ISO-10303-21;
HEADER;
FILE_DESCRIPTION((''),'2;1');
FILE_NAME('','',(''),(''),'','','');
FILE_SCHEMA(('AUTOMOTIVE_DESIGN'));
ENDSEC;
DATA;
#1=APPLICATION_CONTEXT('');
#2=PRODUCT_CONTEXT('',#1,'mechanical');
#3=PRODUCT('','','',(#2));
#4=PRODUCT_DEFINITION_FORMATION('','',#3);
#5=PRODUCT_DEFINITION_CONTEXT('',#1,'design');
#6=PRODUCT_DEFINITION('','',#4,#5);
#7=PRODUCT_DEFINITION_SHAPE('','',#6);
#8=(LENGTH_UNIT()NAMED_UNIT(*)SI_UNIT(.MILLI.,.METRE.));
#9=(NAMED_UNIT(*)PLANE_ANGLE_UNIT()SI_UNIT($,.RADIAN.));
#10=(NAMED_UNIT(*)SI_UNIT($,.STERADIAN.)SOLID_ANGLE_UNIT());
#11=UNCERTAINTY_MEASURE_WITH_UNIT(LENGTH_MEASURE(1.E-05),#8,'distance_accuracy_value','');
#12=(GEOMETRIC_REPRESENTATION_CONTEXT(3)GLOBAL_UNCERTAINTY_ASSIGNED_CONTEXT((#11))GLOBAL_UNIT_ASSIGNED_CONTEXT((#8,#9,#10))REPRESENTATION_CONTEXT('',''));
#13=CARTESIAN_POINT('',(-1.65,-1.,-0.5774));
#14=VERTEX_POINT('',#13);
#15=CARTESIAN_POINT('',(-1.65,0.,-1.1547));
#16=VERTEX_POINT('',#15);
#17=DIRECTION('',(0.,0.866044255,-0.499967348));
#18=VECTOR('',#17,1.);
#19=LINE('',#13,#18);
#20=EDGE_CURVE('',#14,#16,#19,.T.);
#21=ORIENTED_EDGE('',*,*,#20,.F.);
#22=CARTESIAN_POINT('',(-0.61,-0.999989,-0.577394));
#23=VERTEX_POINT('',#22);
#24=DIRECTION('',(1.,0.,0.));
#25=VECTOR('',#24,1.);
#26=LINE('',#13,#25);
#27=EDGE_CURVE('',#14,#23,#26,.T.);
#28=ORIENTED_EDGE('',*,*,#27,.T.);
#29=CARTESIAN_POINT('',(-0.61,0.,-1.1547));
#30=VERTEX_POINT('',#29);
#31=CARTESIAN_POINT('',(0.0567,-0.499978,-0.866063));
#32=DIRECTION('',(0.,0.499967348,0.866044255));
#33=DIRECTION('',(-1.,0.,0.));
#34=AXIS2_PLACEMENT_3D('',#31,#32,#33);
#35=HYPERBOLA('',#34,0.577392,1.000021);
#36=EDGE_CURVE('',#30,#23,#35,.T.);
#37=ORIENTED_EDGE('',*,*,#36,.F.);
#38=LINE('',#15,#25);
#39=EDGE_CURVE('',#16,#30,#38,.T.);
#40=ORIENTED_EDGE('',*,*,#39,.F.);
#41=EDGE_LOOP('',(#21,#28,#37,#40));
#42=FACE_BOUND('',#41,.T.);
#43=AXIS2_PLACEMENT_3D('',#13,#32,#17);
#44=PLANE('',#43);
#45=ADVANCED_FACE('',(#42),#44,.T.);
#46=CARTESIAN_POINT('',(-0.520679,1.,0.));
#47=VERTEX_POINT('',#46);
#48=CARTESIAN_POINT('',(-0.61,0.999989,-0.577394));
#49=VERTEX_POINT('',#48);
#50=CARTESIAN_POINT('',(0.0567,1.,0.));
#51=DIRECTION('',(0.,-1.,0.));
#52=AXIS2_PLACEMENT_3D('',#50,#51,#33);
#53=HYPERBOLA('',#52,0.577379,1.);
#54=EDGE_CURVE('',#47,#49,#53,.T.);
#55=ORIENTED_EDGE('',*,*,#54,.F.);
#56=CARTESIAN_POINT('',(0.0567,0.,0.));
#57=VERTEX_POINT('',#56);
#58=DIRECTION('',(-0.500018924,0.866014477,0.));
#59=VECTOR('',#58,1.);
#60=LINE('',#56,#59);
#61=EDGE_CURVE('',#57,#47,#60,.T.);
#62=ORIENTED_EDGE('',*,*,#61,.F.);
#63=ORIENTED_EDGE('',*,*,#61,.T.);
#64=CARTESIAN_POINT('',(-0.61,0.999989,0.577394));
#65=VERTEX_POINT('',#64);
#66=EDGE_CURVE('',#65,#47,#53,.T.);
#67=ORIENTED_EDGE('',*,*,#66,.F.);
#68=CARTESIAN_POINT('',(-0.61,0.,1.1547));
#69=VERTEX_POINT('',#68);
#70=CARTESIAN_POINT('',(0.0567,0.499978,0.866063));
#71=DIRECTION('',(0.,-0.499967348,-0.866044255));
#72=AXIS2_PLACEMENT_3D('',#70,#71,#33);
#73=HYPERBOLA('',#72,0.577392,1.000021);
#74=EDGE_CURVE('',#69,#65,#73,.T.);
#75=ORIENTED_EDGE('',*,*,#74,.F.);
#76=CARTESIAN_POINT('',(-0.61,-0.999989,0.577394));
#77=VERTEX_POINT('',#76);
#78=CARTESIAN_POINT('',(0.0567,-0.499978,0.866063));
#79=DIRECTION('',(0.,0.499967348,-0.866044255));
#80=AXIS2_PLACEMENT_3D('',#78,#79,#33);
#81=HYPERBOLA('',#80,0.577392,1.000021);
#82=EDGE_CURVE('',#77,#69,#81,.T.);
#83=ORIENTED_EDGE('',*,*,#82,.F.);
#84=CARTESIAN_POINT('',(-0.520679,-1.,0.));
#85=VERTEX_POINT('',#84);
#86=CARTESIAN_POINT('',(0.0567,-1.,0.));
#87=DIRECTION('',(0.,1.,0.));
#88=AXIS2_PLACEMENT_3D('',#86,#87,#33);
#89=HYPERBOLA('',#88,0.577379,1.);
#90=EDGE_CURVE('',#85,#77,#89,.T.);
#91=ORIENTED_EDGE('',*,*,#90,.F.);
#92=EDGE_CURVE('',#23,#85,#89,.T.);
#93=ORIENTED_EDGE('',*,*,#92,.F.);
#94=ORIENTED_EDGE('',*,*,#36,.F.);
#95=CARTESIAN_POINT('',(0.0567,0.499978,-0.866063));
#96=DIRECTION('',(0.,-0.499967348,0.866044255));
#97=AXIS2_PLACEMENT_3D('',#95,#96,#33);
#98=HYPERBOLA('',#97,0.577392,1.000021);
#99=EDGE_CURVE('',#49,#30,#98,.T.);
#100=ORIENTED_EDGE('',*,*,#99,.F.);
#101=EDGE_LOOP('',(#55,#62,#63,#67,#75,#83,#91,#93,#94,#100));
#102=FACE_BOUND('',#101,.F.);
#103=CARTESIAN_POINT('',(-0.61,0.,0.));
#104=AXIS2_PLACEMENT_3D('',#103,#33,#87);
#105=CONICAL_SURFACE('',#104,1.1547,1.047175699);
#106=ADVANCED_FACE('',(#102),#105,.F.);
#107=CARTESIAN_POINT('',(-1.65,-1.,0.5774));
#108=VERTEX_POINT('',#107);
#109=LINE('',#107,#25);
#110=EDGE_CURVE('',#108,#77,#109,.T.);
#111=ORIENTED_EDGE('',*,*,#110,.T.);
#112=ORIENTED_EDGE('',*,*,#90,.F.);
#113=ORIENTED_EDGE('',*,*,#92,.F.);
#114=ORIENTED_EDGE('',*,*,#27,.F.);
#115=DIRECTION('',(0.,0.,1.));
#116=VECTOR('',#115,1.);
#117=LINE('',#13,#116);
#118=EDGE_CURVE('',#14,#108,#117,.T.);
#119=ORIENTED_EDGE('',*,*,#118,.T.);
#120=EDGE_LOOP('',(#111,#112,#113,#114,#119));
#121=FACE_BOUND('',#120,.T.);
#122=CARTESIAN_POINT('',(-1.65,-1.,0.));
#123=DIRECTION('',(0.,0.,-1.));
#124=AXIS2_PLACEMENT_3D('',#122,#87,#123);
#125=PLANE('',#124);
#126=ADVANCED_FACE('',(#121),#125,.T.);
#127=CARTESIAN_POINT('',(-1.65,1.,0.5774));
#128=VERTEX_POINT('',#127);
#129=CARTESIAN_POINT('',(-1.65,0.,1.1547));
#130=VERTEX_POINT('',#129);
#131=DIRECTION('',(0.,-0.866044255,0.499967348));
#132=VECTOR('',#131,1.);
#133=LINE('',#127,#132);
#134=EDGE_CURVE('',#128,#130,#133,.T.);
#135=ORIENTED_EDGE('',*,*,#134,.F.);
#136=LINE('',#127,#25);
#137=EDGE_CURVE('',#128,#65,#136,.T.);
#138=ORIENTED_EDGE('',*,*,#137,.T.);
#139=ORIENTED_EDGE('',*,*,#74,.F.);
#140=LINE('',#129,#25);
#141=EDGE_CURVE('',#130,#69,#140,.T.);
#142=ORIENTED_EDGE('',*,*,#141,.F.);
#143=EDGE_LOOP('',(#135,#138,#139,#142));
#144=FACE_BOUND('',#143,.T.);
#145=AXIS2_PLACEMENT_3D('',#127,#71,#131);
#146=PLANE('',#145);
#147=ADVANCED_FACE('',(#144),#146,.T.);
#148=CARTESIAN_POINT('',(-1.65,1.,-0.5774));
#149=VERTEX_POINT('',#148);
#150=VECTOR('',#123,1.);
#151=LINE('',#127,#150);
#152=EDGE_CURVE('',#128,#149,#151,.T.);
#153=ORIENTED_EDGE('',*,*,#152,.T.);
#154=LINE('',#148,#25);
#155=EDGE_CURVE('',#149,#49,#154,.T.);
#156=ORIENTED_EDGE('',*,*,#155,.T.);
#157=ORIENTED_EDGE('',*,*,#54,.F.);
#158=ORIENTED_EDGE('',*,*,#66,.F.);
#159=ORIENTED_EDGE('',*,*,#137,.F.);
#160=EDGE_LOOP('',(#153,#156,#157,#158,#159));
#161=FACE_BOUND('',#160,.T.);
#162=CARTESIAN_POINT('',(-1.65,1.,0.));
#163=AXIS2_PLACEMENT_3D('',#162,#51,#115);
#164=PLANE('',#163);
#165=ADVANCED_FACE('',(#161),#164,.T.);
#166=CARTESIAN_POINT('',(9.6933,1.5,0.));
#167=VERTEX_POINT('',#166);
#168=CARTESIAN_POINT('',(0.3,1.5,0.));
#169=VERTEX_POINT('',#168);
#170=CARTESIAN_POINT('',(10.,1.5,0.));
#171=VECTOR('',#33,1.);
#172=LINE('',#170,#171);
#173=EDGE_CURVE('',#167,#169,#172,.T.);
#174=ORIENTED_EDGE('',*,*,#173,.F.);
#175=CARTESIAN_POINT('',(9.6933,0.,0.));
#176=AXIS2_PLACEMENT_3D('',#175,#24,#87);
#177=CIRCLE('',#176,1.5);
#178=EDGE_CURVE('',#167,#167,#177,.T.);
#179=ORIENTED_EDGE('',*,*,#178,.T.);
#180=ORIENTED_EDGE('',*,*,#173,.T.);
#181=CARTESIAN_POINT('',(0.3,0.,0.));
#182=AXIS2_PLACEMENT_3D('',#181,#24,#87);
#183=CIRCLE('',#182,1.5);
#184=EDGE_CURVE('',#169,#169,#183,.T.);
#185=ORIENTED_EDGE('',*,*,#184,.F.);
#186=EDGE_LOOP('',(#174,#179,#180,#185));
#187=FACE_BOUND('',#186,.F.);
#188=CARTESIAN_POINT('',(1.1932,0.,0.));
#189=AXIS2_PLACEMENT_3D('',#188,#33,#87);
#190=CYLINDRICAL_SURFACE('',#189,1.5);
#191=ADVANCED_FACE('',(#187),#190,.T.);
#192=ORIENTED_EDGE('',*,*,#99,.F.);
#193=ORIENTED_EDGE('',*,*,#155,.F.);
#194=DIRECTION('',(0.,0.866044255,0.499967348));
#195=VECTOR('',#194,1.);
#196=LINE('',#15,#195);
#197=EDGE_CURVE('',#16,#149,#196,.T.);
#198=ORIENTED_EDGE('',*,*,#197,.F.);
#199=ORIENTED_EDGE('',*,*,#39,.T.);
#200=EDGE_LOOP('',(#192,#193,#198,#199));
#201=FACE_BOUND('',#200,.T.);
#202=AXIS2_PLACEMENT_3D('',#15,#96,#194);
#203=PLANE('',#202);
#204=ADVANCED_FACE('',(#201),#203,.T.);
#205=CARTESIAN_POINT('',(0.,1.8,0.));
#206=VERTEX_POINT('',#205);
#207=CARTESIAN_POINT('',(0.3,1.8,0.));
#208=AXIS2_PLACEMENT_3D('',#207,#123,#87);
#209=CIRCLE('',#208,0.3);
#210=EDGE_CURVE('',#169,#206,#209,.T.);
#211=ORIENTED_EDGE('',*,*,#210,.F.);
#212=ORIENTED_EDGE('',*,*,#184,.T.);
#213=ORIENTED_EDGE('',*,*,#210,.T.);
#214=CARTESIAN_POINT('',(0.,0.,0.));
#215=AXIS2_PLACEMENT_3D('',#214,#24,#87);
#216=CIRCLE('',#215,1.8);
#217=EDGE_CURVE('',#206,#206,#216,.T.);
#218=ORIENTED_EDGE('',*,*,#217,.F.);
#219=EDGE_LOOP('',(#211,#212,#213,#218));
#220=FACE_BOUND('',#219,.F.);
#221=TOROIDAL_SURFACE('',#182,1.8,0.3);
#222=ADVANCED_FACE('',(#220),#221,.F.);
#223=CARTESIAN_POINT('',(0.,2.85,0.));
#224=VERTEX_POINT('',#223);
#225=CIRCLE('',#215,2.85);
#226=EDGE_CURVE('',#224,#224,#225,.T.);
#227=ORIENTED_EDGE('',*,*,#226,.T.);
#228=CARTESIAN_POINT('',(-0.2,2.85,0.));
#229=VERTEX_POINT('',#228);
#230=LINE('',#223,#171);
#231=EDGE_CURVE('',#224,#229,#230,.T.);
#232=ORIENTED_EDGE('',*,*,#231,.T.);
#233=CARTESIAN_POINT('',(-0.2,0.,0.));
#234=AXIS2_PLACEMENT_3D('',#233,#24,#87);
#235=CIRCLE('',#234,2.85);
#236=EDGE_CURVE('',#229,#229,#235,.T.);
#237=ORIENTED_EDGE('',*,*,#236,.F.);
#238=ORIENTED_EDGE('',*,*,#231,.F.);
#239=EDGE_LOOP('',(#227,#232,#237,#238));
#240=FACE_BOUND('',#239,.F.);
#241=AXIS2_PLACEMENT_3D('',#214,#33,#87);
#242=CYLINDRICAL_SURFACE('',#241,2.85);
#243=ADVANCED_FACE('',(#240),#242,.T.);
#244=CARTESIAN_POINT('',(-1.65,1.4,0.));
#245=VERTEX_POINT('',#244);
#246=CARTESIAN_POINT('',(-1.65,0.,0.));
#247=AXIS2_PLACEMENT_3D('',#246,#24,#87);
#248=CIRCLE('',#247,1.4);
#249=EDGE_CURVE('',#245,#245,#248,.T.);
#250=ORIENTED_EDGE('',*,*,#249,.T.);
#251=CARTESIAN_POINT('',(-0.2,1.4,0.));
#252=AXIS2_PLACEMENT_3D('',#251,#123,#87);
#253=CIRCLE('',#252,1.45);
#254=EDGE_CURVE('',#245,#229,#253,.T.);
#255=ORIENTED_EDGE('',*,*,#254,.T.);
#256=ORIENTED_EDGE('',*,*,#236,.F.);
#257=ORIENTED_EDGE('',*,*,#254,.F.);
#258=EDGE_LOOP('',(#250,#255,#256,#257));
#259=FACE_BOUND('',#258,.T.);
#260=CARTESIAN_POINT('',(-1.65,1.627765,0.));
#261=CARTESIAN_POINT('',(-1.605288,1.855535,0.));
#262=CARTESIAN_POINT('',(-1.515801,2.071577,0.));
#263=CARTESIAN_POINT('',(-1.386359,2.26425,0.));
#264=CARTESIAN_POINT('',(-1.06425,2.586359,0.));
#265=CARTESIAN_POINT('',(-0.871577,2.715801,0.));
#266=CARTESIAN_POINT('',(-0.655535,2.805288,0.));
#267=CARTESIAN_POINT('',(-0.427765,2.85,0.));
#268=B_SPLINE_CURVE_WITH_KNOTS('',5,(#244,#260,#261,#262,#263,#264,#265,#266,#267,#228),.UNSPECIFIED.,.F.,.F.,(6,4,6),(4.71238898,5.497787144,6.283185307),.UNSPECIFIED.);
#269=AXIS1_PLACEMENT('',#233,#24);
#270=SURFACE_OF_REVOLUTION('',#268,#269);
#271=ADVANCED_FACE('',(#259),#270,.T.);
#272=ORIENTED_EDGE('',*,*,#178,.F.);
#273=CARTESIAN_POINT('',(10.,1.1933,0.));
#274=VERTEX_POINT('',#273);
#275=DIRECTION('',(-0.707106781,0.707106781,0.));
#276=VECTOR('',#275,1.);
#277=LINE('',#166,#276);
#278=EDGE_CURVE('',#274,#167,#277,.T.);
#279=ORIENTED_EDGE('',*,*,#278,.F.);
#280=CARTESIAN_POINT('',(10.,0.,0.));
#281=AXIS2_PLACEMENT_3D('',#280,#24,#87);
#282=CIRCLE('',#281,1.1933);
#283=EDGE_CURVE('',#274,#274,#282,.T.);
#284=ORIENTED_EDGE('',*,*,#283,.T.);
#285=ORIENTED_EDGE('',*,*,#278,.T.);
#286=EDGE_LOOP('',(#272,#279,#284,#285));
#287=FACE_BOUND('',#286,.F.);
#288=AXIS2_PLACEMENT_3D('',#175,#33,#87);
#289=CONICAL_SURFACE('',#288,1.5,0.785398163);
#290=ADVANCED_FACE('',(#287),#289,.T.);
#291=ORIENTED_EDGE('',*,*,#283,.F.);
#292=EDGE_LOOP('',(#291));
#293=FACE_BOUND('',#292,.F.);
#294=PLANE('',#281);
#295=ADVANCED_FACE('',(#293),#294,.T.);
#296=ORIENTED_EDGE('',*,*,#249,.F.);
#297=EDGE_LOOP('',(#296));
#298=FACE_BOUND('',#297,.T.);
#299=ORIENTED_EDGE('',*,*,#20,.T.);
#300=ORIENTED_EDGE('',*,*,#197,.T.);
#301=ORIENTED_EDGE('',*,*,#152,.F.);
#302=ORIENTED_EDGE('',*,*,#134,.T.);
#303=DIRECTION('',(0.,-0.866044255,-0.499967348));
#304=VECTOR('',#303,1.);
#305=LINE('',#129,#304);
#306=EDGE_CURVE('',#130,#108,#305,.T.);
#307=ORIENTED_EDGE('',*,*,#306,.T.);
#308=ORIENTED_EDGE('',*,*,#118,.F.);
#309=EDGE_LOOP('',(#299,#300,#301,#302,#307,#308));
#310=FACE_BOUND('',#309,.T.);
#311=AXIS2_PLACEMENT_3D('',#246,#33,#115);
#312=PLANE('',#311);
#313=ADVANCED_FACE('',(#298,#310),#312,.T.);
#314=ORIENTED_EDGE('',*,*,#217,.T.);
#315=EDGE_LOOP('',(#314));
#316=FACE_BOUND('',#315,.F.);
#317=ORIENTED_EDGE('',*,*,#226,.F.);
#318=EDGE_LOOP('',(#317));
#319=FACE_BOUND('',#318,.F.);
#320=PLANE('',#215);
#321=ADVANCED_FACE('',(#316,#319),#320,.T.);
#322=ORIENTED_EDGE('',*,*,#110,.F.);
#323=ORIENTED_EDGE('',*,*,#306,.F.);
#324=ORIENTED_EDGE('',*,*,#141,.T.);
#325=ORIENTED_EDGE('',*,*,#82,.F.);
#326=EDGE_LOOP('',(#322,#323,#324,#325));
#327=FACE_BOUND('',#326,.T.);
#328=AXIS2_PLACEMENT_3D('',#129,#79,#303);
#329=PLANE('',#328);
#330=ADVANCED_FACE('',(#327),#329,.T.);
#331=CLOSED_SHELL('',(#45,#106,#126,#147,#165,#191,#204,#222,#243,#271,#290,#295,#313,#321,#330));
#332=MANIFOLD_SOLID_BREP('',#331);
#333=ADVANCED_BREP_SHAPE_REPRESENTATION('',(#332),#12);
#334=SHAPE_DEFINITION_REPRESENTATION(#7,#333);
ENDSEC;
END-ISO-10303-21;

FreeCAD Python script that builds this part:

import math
import FreeCAD as App
import Part
import Sketcher

V = App.Vector
Q = App.Units.Quantity


def edges_at(feature, points):
    """Names of the edges that pass closest to the given points."""
    edges = feature.Shape.Edges
    near = lambda p: min(range(len(edges)), key=lambda i: edges[i].distToShape(Part.Vertex(*p))[0])
    return sorted({f"Edge{near(p) + 1}" for p in points})

doc = App.newDocument("Part")
body = doc.addObject("PartDesign::Body", "Body")

# Sketch on XY plane
sketch1 = doc.addObject("Sketcher::SketchObject", "Sketch")
body.addObject(sketch1)
sketch1.AttachmentSupport = (doc.XY_Plane, [""])
sketch1.MapMode = "FlatFace"
sketch1.addGeometry([
    Part.LineSegment(V(0.0567, 0, 0), V(10, 0, 0)),  # 0
    Part.LineSegment(V(10, 0, 0), V(10, 1.5, 0)),  # 1
    Part.LineSegment(V(10, 1.5, 0), V(0, 1.5, 0)),  # 2
    Part.LineSegment(V(0, 1.5, 0), V(0, 2.85, 0)),  # 3
    Part.LineSegment(V(0, 2.85, 0), V(-1.65, 2.85, 0)),  # 4
    Part.LineSegment(V(-1.65, 2.85, 0), V(-1.65, 1.1547, 0)),  # 5
    Part.LineSegment(V(-1.65, 1.1547, 0), V(-0.61, 1.1547, 0)),  # 6
    Part.LineSegment(V(-0.61, 1.1547, 0), V(0.0567, 0, 0)),  # 7
], False)
sketch1.addConstraint([
    Sketcher.Constraint("Coincident", 0, 2, 1, 1),
    Sketcher.Constraint("Coincident", 1, 2, 2, 1),
    Sketcher.Constraint("Coincident", 2, 2, 3, 1),
    Sketcher.Constraint("Coincident", 3, 2, 4, 1),
    Sketcher.Constraint("Coincident", 4, 2, 5, 1),
    Sketcher.Constraint("Coincident", 5, 2, 6, 1),
    Sketcher.Constraint("Coincident", 6, 2, 7, 1),
    Sketcher.Constraint("Coincident", 7, 2, 0, 1),
    Sketcher.Constraint("Horizontal", 0),
    Sketcher.Constraint("Vertical", 1),
    Sketcher.Constraint("Horizontal", 2),
    Sketcher.Constraint("Vertical", 3),
    Sketcher.Constraint("Horizontal", 4),
    Sketcher.Constraint("Vertical", 5),
    Sketcher.Constraint("Horizontal", 6),
    Sketcher.Constraint("PointOnObject", 0, 2, -1),
    Sketcher.Constraint("PointOnObject", 2, 2, -2),
    Sketcher.Constraint("DistanceX", 2, 2, 2, 1, Q("10 mm")),
    Sketcher.Constraint("DistanceX", 4, 2, 4, 1, Q("1.65 mm")),
    Sketcher.Constraint("DistanceX", 6, 1, 6, 2, Q("1.04 mm")),
    Sketcher.Constraint("DistanceY", 1, 1, 1, 2, Q("1.5 mm")),
    Sketcher.Constraint("DistanceY", 3, 1, 3, 2, Q("1.35 mm")),
    Sketcher.Constraint("DistanceX", 0, 1, 0, 2, Q("9.9433 mm")),
    Sketcher.Constraint("DistanceY", 5, 2, 5, 1, Q("1.6953 mm")),
])
revolution = doc.addObject("PartDesign::Revolution", "Revolution")
body.addObject(revolution)
revolution.Profile = sketch1
revolution.ReferenceAxis = (sketch1, ["H_Axis"])
revolution.Angle = 360

# Sketch on YZ plane
sketch2 = doc.addObject("Sketcher::SketchObject", "Sketch001")
body.addObject(sketch2)
sketch2.AttachmentSupport = (doc.YZ_Plane, [""])
sketch2.MapMode = "FlatFace"
sketch2.AttachmentOffset = App.Placement(V(0, 0, -1.65), App.Rotation())
sketch2.addGeometry([
    Part.LineSegment(V(1, 0.5774, 0), V(0, 1.1547, 0)),  # 0
    Part.ArcOfCircle(Part.Circle(V(0, 0, 0), V(0, 0, 1), 1.1547), math.radians(30.002137), math.radians(90)),  # 1
    Part.ArcOfCircle(Part.Circle(V(0, 0, 0), V(0, 0, 1), 1.1547), math.radians(90), math.radians(149.997863)),  # 2
    Part.LineSegment(V(0, 1.1547, 0), V(-1, 0.5774, 0)),  # 3
    Part.ArcOfCircle(Part.Circle(V(0, 0, 0), V(0, 0, 1), 1.1547), math.radians(-30.002137), math.radians(30.002137)),  # 4
    Part.LineSegment(V(1, 0.5774, 0), V(1, -0.5774, 0)),  # 5
    Part.LineSegment(V(-1, 0.5774, 0), V(-1, -0.5774, 0)),  # 6
    Part.ArcOfCircle(Part.Circle(V(0, 0, 0), V(0, 0, 1), 1.1547), math.radians(149.997863), math.radians(210.002137)),  # 7
    Part.LineSegment(V(-1, -0.5774, 0), V(0, -1.1547, 0)),  # 8
    Part.ArcOfCircle(Part.Circle(V(0, 0, 0), V(0, 0, 1), 1.1547), math.radians(-149.997863), math.radians(-90)),  # 9
    Part.ArcOfCircle(Part.Circle(V(0, 0, 0), V(0, 0, 1), 1.1547), math.radians(-90), math.radians(-30.002137)),  # 10
    Part.LineSegment(V(0, -1.1547, 0), V(1, -0.5774, 0)),  # 11
], False)
sketch2.addConstraint([
    Sketcher.Constraint("Coincident", 0, 1, 1, 1),
    Sketcher.Constraint("Coincident", 1, 2, 0, 2),
    Sketcher.Constraint("Coincident", 2, 1, 3, 1),
    Sketcher.Constraint("Coincident", 3, 2, 2, 2),
    Sketcher.Constraint("Coincident", 4, 1, 5, 2),
    Sketcher.Constraint("Coincident", 5, 1, 4, 2),
    Sketcher.Constraint("Coincident", 6, 1, 7, 1),
    Sketcher.Constraint("Coincident", 7, 2, 6, 2),
    Sketcher.Constraint("Coincident", 8, 1, 9, 1),
    Sketcher.Constraint("Coincident", 9, 2, 8, 2),
    Sketcher.Constraint("Coincident", 10, 1, 11, 1),
    Sketcher.Constraint("Coincident", 11, 2, 10, 2),
    Sketcher.Constraint("Vertical", 5),
    Sketcher.Constraint("Vertical", 6),
    Sketcher.Constraint("Coincident", 1, 3, -1, 1),
    Sketcher.Constraint("Coincident", 2, 3, -1, 1),
    Sketcher.Constraint("Coincident", 4, 3, -1, 1),
    Sketcher.Constraint("Coincident", 7, 3, -1, 1),
    Sketcher.Constraint("Coincident", 9, 3, -1, 1),
    Sketcher.Constraint("Coincident", 10, 3, -1, 1),
    Sketcher.Constraint("Coincident", 2, 1, 1, 2),
    Sketcher.Constraint("Coincident", 5, 1, 0, 1),
    Sketcher.Constraint("Coincident", 6, 1, 3, 2),
    Sketcher.Constraint("Coincident", 8, 1, 7, 2),
    Sketcher.Constraint("Coincident", 10, 1, 9, 2),
    Sketcher.Constraint("PointOnObject", 1, 2, -2),
    Sketcher.Constraint("PointOnObject", 9, 2, -2),
    Sketcher.Constraint("Parallel", 0, 8),
    Sketcher.Constraint("Parallel", 3, 11),
    Sketcher.Constraint("DistanceX", -1, 1, 0, 1, Q("1 mm")),
    Sketcher.Constraint("Radius", 1, Q("1.1547 mm")),
])
pad1 = doc.addObject("PartDesign::Pad", "Pad")
body.addObject(pad1)
pad1.Profile = sketch2
pad1.Type = "UpToFirst"
doc.recompute()

fillet = doc.addObject("PartDesign::Fillet", "Fillet")
body.addObject(fillet)
fillet.Base = (pad1, edges_at(pad1, [(-1.65, -2.85, 0)]))
fillet.Radius = 1.45
doc.recompute()

chamfer = doc.addObject("PartDesign::Chamfer", "Chamfer")
body.addObject(chamfer)
chamfer.Base = (fillet, edges_at(fillet, [(10, -1.5, 0)]))
chamfer.ChamferType = "Two distances"
chamfer.Size = 0.3067
chamfer.Size2 = 0.3067
doc.recompute()

fillet2 = doc.addObject("PartDesign::Fillet", "Fillet001")
body.addObject(fillet2)
fillet2.Base = (chamfer, edges_at(chamfer, [(0, -1.5, 0)]))
fillet2.Radius = 0.3

doc.recompute()
